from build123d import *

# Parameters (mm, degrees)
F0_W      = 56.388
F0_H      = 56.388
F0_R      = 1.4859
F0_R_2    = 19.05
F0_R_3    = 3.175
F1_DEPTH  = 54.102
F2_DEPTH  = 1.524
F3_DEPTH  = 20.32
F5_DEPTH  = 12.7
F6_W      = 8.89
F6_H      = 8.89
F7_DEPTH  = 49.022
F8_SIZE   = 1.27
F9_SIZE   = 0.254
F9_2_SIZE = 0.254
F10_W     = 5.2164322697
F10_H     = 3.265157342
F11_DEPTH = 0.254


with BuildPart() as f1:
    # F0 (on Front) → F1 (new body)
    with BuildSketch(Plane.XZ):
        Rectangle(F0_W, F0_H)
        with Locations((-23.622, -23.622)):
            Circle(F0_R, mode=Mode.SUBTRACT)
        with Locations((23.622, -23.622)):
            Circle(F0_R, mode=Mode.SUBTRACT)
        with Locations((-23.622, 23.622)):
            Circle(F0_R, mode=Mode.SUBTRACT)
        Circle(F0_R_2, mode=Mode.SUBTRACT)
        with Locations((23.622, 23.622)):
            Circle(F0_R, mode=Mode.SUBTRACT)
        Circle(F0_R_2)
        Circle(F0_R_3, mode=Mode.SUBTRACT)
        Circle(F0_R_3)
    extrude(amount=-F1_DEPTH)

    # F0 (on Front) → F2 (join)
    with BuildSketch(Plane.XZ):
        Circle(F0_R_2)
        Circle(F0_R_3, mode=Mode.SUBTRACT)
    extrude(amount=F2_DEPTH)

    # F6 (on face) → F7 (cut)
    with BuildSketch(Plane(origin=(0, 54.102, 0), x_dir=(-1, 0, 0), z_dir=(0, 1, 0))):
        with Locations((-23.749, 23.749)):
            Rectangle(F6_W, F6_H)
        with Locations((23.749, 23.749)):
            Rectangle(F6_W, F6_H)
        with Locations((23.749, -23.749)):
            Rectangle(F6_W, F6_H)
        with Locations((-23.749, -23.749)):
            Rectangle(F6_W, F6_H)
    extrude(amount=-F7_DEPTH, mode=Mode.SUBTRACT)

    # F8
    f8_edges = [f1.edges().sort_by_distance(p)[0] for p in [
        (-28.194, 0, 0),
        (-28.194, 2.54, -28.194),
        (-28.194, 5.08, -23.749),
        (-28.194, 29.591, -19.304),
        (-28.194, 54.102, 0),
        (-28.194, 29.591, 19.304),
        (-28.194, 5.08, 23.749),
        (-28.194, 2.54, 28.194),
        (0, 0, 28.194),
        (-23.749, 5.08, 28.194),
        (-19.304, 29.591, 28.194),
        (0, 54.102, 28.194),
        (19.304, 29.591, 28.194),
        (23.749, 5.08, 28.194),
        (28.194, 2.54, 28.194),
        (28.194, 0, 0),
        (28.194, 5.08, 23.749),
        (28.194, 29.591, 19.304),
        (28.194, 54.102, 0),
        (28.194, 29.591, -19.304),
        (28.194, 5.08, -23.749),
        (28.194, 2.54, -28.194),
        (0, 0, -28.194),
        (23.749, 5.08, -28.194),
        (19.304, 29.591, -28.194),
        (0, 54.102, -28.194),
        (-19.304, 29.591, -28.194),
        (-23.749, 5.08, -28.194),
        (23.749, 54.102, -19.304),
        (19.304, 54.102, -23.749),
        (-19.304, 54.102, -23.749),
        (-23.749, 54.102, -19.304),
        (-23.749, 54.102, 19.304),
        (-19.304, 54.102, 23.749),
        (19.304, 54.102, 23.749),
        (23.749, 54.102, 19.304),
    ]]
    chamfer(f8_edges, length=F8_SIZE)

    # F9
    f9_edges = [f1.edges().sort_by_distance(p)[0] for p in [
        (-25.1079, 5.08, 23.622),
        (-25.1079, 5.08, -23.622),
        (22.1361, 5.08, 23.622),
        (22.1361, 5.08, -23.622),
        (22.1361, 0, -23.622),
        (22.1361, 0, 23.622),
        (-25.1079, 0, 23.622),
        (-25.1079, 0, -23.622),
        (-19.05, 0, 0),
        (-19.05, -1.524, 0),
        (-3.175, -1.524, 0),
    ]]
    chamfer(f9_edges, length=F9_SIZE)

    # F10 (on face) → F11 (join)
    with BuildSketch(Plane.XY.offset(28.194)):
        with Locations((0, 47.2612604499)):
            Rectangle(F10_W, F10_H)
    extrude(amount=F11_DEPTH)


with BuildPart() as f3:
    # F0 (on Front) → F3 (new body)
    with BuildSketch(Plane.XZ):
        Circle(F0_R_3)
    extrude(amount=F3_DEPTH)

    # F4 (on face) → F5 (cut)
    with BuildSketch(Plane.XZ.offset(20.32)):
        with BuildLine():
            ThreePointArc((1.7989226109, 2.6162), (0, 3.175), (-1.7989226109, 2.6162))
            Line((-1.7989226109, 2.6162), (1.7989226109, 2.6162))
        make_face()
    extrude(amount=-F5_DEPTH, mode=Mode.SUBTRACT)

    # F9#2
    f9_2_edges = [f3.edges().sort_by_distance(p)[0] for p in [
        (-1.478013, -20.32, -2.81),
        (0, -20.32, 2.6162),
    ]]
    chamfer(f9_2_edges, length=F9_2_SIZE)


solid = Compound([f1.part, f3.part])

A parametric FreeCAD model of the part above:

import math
import FreeCAD as App
import Part
import Sketcher
Q = App.Units.Quantity


def edges_at(feature, points):
    """Names of the edges that pass closest to the given points."""
    edges = feature.Shape.Edges
    near = lambda p: min(range(len(edges)), key=lambda i: edges[i].distToShape(Part.Vertex(*p))[0])
    return sorted({f"Edge{near(p) + 1}" for p in points})


def add_polygon(sketch, points):
    """Adds a closed chain of lines whose ends are joined by coincident constraints."""
    first, n = sketch.GeometryCount, len(points)
    for a, b in zip(points, points[1:] + points[:1]):
        sketch.addGeometry(Part.LineSegment(App.Vector(*a, 0), App.Vector(*b, 0)), False)
    for i in range(n):
        sketch.addConstraint(Sketcher.Constraint("Coincident", first + i, 2, first + (i + 1) % n, 1))

doc = App.newDocument("Part")
body = doc.addObject("PartDesign::Body", "Body")

sketch1 = body.newObject("Sketcher::SketchObject", "Sketch")
sketch1.AttachmentSupport = (doc.getObject("XZ_Plane"), [""])
sketch1.MapMode = "FlatFace"
add_polygon(sketch1, [(-28.194, 28.194), (-28.194, -28.194), (28.194, -28.194), (28.194, 28.194)])
sketch1.addGeometry(Part.Circle(App.Vector(-23.622, -23.622, 0), App.Vector(0, 0, 1), 1.4859), False)
sketch1.addGeometry(Part.Circle(App.Vector(23.622, -23.622, 0), App.Vector(0, 0, 1), 1.4859), False)
sketch1.addGeometry(Part.Circle(App.Vector(-23.622, 23.622, 0), App.Vector(0, 0, 1), 1.4859), False)
sketch1.addGeometry(Part.Circle(App.Vector(23.622, 23.622, 0), App.Vector(0, 0, 1), 1.4859), False)
sketch1.addConstraint(Sketcher.Constraint("Vertical", 0))
sketch1.addConstraint(Sketcher.Constraint("Horizontal", 1))
sketch1.addConstraint(Sketcher.Constraint("Vertical", 2))
sketch1.addConstraint(Sketcher.Constraint("Horizontal", 3))
sketch1.addConstraint(Sketcher.Constraint("Equal", 4, 5))
sketch1.addConstraint(Sketcher.Constraint("Equal", 5, 6))
sketch1.addConstraint(Sketcher.Constraint("Equal", 6, 7))
sketch1.addConstraint(Sketcher.Constraint("Symmetric", 5, 3, 6, 3, -1, 1))
sketch1.addConstraint(Sketcher.Constraint("Symmetric", 4, 3, 7, 3, -1, 1))
sketch1.addConstraint(Sketcher.Constraint("Symmetric", 0, 2, 2, 2, -1, 1))
sketch1.addConstraint(Sketcher.Constraint("Symmetric", 4, 3, 5, 3, -2))
sketch1.addConstraint(Sketcher.Constraint("Equal", 3, 0))
sketch1.addConstraint(Sketcher.Constraint("Diameter", 4, Q("0.117 in")))
sketch1.addConstraint(Sketcher.Constraint("DistanceX", 1, 1, 1, 2, Q("2.22 in")))
sketch1.addConstraint(Sketcher.Constraint("DistanceX", 4, 3, -1, 1, Q("0.93 in")))
sketch1.addConstraint(Sketcher.Constraint("DistanceY", 4, 3, -1, 1, Q("0.93 in")))
pad1 = body.newObject("PartDesign::Pad", "Pad")
pad1.Profile = sketch1
pad1.Length = Q("2.13 in")
pad1.Reversed = True

sketch2 = body.newObject("Sketcher::SketchObject", "Sketch001")
sketch2.AttachmentSupport = (doc.getObject("XZ_Plane"), [""])
sketch2.MapMode = "FlatFace"
sketch2.addGeometry(Part.Circle(App.Vector(0, 0, 0), App.Vector(0, 0, 1), 19.05), False)
sketch2.addGeometry(Part.Circle(App.Vector(0, 0, 0), App.Vector(0, 0, 1), 3.175), False)
sketch2.addConstraint(Sketcher.Constraint("Coincident", 0, 3, -1, 1))
sketch2.addConstraint(Sketcher.Constraint("Coincident", 1, 3, -1, 1))
sketch2.addConstraint(Sketcher.Constraint("Diameter", 0, Q("1.5 in")))
sketch2.addConstraint(Sketcher.Constraint("Diameter", 1, Q("0.25 in")))
pad2 = body.newObject("PartDesign::Pad", "Pad001")
pad2.Profile = sketch2
pad2.Length = Q("0.06 in")

sketch3 = body.newObject("Sketcher::SketchObject", "Sketch002")
sketch3.AttachmentSupport = (doc.getObject("XZ_Plane"), [""])
sketch3.MapMode = "FlatFace"
sketch3.AttachmentOffset = App.Placement(App.Vector(0, 0, -2.13 * 25.4), App.Rotation())
add_polygon(sketch3, [(28.194, 28.194), (28.194, 19.304), (19.304, 19.304), (19.304, 28.194)])
add_polygon(sketch3, [(-19.304, 28.194), (-19.304, 19.304), (-28.194, 19.304), (-28.194, 28.194)])
add_polygon(sketch3, [(-19.304, -19.304), (-19.304, -28.194), (-28.194, -28.194), (-28.194, -19.304)])
add_polygon(sketch3, [(28.194, -19.304), (28.194, -28.194), (19.304, -28.194), (19.304, -19.304)])
sketch3.addConstraint(Sketcher.Constraint("Vertical", 0))
sketch3.addConstraint(Sketcher.Constraint("Horizontal", 1))
sketch3.addConstraint(Sketcher.Constraint("Vertical", 2))
sketch3.addConstraint(Sketcher.Constraint("Horizontal", 3))
sketch3.addConstraint(Sketcher.Constraint("Vertical", 4))
sketch3.addConstraint(Sketcher.Constraint("Horizontal", 5))
sketch3.addConstraint(Sketcher.Constraint("Vertical", 6))
sketch3.addConstraint(Sketcher.Constraint("Horizontal", 7))
sketch3.addConstraint(Sketcher.Constraint("Vertical", 8))
sketch3.addConstraint(Sketcher.Constraint("Horizontal", 9))
sketch3.addConstraint(Sketcher.Constraint("Vertical", 10))
sketch3.addConstraint(Sketcher.Constraint("Horizontal", 11))
sketch3.addConstraint(Sketcher.Constraint("Vertical", 12))
sketch3.addConstraint(Sketcher.Constraint("Horizontal", 13))
sketch3.addConstraint(Sketcher.Constraint("Vertical", 14))
sketch3.addConstraint(Sketcher.Constraint("Horizontal", 15))
sketch3.addConstraint(Sketcher.Constraint("Symmetric", 2, 2, 8, 2, -1, 1))
sketch3.addConstraint(Sketcher.Constraint("Symmetric", 0, 2, 10, 2, -1, 1))
sketch3.addConstraint(Sketcher.Constraint("Symmetric", 6, 2, 12, 2, -1, 1))
sketch3.addConstraint(Sketcher.Constraint("Symmetric", 4, 2, 14, 2, -1, 1))
sketch3.addConstraint(Sketcher.Constraint("Symmetric", 1, 2, 4, 2, -2))
sketch3.addConstraint(Sketcher.Constraint("Symmetric", 3, 2, 6, 2, -2))
sketch3.addConstraint(Sketcher.Constraint("Equal", 15, 0))
sketch3.addConstraint(Sketcher.Constraint("DistanceX", 1, 2, 1, 1, Q("0.35 in")))
sketch3.addConstraint(Sketcher.Constraint("DistanceX", -1, 1, 0, 2, Q("1.11 in")))
sketch3.addConstraint(Sketcher.Constraint("DistanceY", -1, 1, 0, 2, Q("0.76 in")))
pocket1 = body.newObject("PartDesign::Pocket", "Pocket")
pocket1.Profile = sketch3
pocket1.Length = Q("1.93 in")
pocket1.Reversed = True
doc.recompute()

chamfer = body.newObject("PartDesign::Chamfer", "Chamfer")
chamfer.Base = (pocket1, edges_at(pocket1, [
    (-28.194, 0, 0),
    (-28.194, 2.54, -28.194),
    (-28.194, 5.08, -23.749),
    (-28.194, 29.591, -19.304),
    (-28.194, 54.102, 0),
    (-28.194, 29.591, 19.304),
    (-28.194, 5.08, 23.749),
    (-28.194, 2.54, 28.194),
    (0, 0, 28.194),
    (-23.749, 5.08, 28.194),
    (-19.304, 29.591, 28.194),
    (0, 54.102, 28.194),
    (19.304, 29.591, 28.194),
    (23.749, 5.08, 28.194),
    (28.194, 2.54, 28.194),
    (28.194, 0, 0),
    (28.194, 5.08, 23.749),
    (28.194, 29.591, 19.304),
    (28.194, 54.102, 0),
    (28.194, 29.591, -19.304),
    (28.194, 5.08, -23.749),
    (28.194, 2.54, -28.194),
    (0, 0, -28.194),
    (23.749, 5.08, -28.194),
    (19.304, 29.591, -28.194),
    (0, 54.102, -28.194),
    (-19.304, 29.591, -28.194),
    (-23.749, 5.08, -28.194),
    (23.749, 54.102, -19.304),
    (19.304, 54.102, -23.749),
    (-19.304, 54.102, -23.749),
    (-23.749, 54.102, -19.304),
    (-23.749, 54.102, 19.304),
    (-19.304, 54.102, 23.749),
    (19.304, 54.102, 23.749),
    (23.749, 54.102, 19.304),
]))
chamfer.Size = Q("0.05 in")
doc.recompute()

chamfer2 = body.newObject("PartDesign::Chamfer", "Chamfer001")
chamfer2.Base = (chamfer, edges_at(chamfer, [
    (-25.108, 5.08, 23.622),
    (-25.108, 5.08, -23.622),
    (22.136, 5.08, 23.622),
    (22.136, 5.08, -23.622),
    (22.136, 0, -23.622),
    (22.136, 0, 23.622),
    (-25.108, 0, 23.622),
    (-25.108, 0, -23.622),
    (-19.05, 0, 0),
    (-19.05, -1.524, 0),
    (-3.175, -1.524, 0),
]))
chamfer2.Size = Q("0.01 in")

sketch4 = body.newObject("Sketcher::SketchObject", "Sketch003")
sketch4.AttachmentSupport = (doc.getObject("XY_Plane"), [""])
sketch4.MapMode = "FlatFace"
sketch4.AttachmentOffset = App.Placement(App.Vector(0, 0, 1.11 * 25.4), App.Rotation())
add_polygon(sketch4, [(-2.608216, 48.893839), (-2.608216, 45.628682), (2.608216, 45.628682), (2.608216, 48.893839)])
sketch4.addConstraint(Sketcher.Constraint("Vertical", 0))
sketch4.addConstraint(Sketcher.Constraint("Horizontal", 1))
sketch4.addConstraint(Sketcher.Constraint("Vertical", 2))
sketch4.addConstraint(Sketcher.Constraint("Horizontal", 3))
sketch4.addConstraint(Sketcher.Constraint("DistanceX", 1, 1, 1, 2, 5.216432))
sketch4.addConstraint(Sketcher.Constraint("DistanceY", 0, 2, 0, 1, 3.265157))
sketch4.addConstraint(Sketcher.Constraint("DistanceY", -1, 1, 0, 2, 45.628682))
sketch4.addConstraint(Sketcher.Constraint("DistanceX", 0, 2, -1, 1, 2.608216))
pad3 = body.newObject("PartDesign::Pad", "Pad002")
pad3.Profile = sketch4
pad3.Length = Q("0.01 in")
body2 = doc.addObject("PartDesign::Body", "Body001")

sketch5 = body2.newObject("Sketcher::SketchObject", "Sketch004")
sketch5.AttachmentSupport = (doc.getObject("XZ_Plane001"), [""])
sketch5.MapMode = "FlatFace"
sketch5.addGeometry(Part.Circle(App.Vector(0, 0, 0), App.Vector(0, 0, 1), 3.175), False)
sketch5.addConstraint(Sketcher.Constraint("Coincident", 0, 3, -1, 1))
sketch5.addConstraint(Sketcher.Constraint("Diameter", 0, Q("0.25 in")))
pad4 = body2.newObject("PartDesign::Pad", "Pad003")
pad4.Profile = sketch5
pad4.Length = Q("0.8 in")

sketch6 = body2.newObject("Sketcher::SketchObject", "Sketch005")
sketch6.AttachmentSupport = (doc.getObject("XZ_Plane001"), [""])
sketch6.MapMode = "FlatFace"
sketch6.AttachmentOffset = App.Placement(App.Vector(0, 0, 0.8 * 25.4), App.Rotation())
sketch6.addGeometry(Part.ArcOfCircle(Part.Circle(App.Vector(0, 0, 0), App.Vector(0, 0, 1), 3.175), math.radians(55.487237), math.radians(124.512763)), False)
sketch6.addGeometry(Part.LineSegment(App.Vector(-1.798923, 2.6162, 0), App.Vector(1.798923, 2.6162, 0)), False)
sketch6.addConstraint(Sketcher.Constraint("Coincident", 0, 1, 1, 2))
sketch6.addConstraint(Sketcher.Constraint("Coincident", 1, 1, 0, 2))
sketch6.addConstraint(Sketcher.Constraint("Horizontal", 1))
sketch6.addConstraint(Sketcher.Constraint("Coincident", 0, 3, -1, 1))
sketch6.addConstraint(Sketcher.Constraint("Radius", 0, Q("0.125 in")))
sketch6.addConstraint(Sketcher.Constraint("DistanceY", -1, 1, 0, 1, Q("0.103 in")))
pocket2 = body2.newObject("PartDesign::Pocket", "Pocket001")
pocket2.Profile = sketch6
pocket2.Length = Q("0.5 in")
doc.recompute()

chamfer3 = body2.newObject("PartDesign::Chamfer", "Chamfer002")
chamfer3.Base = (pocket2, edges_at(pocket2, [(-1.478, -20.32, -2.81), (0, -20.32, 2.616)]))
chamfer3.Size = Q("0.01 in")

doc.recompute()
